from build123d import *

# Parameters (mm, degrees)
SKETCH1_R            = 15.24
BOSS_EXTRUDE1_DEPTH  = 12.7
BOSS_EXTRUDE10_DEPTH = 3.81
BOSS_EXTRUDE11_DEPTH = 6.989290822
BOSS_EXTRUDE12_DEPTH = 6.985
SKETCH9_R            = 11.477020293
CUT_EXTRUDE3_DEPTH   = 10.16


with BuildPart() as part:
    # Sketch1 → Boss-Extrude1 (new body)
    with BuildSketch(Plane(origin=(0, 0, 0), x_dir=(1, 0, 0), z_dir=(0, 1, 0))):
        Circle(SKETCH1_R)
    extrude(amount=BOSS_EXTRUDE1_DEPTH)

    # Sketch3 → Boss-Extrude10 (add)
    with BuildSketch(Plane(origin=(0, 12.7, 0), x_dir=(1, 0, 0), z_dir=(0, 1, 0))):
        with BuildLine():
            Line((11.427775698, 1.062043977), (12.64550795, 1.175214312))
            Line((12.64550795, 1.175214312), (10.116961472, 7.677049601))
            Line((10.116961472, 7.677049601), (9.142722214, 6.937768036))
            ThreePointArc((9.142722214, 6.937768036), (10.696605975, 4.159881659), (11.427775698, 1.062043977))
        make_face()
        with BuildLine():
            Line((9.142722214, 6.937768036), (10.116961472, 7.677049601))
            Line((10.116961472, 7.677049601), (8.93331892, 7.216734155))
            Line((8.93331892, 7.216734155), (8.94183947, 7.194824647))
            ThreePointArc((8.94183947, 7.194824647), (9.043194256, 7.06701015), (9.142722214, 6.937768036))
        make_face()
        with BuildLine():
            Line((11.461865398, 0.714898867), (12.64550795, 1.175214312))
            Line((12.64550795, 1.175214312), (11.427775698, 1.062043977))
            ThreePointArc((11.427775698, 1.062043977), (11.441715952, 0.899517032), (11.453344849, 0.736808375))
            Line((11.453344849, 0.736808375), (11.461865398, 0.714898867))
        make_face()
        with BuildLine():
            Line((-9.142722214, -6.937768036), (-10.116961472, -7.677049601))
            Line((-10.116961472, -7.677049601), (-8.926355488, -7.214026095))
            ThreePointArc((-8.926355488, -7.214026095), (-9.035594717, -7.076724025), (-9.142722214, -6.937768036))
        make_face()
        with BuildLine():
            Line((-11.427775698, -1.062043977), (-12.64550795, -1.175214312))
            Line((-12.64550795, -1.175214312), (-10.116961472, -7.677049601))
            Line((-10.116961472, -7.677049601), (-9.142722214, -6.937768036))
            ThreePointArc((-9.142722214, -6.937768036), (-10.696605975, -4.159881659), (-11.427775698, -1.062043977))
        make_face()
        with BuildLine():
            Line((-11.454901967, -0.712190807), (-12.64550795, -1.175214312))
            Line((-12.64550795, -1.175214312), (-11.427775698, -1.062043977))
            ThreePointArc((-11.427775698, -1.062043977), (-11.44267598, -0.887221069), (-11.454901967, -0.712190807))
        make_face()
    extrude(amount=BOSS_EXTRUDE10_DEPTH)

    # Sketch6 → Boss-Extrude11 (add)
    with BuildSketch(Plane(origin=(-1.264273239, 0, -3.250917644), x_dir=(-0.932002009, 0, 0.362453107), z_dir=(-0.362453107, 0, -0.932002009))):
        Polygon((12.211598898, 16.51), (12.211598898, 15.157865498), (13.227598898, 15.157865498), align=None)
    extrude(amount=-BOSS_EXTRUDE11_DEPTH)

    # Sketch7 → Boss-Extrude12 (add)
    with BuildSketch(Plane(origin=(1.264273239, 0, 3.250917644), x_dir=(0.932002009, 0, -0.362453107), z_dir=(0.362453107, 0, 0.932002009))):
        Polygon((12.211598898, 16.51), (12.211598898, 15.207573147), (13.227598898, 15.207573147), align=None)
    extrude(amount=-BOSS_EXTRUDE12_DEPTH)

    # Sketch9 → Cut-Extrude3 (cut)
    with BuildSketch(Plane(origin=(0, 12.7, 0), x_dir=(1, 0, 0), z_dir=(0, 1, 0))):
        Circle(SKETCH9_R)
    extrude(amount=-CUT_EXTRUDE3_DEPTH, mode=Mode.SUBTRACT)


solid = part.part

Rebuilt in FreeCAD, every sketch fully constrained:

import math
import FreeCAD as App
import Part
import Sketcher
from FreeCAD import Vector
Q = App.Units.Quantity

doc = App.newDocument("Part")
body = doc.addObject("PartDesign::Body", "Body")

sketch1 = body.newObject("Sketcher::SketchObject", "Sketch")
sketch1.AttachmentSupport = (doc.getObject("XZ_Plane"), [""])
sketch1.MapMode = "FlatFace"
sketch1.addGeometry(Part.Circle(Vector(0, 0, 0), Vector(0, 0, 1), 15.24), False)
sketch1.addConstraint([
    Sketcher.Constraint("Coincident", 0, 3, -1, 1),
    Sketcher.Constraint("Diameter", 0, Q("1.2 in")),
])
pad1 = body.newObject("PartDesign::Pad", "Pad")
pad1.Profile = sketch1
pad1.Length = Q("0.5 in")
pad1.Reversed = True

sketch2 = body.newObject("Sketcher::SketchObject", "Sketch001")
sketch2.AttachmentSupport = (doc.getObject("XZ_Plane"), [""])
sketch2.MapMode = "FlatFace"
sketch2.AttachmentOffset = App.Placement(Vector(0, 0, -0.5 * 25.4), App.Rotation())
sketch2.addGeometry([
    Part.LineSegment(Vector(12.645508, -1.175214, 0), Vector(10.116961, -7.67705, 0)),
    Part.LineSegment(Vector(10.116961, -7.67705, 0), Vector(8.933319, -7.216734, 0)),
    Part.LineSegment(Vector(8.933319, -7.216734, 0), Vector(8.941839, -7.194825, 0)),
    Part.ArcOfCircle(Part.Circle(Vector(0.000002, -0.000002, 0), Vector(0, 0, 1), 11.477018), math.radians(-38.821014), math.radians(-37.192302)),
    Part.ArcOfCircle(Part.Circle(Vector(0, 0, 0), Vector(0, 0, 1), 11.47702), math.radians(-37.192302), math.radians(-5.30955)),
    Part.ArcOfCircle(Part.Circle(Vector(0.000002, 0, 0), Vector(0, 0, 1), 11.477018), math.radians(-5.309551), math.radians(-3.680839)),
    Part.LineSegment(Vector(11.453345, -0.736808, 0), Vector(11.461865, -0.714899, 0)),
    Part.LineSegment(Vector(11.461865, -0.714899, 0), Vector(12.645508, -1.175214, 0)),
    Part.LineSegment(Vector(-10.116961, 7.67705, 0), Vector(-8.926355, 7.214026, 0)),
    Part.ArcOfCircle(Part.Circle(Vector(-0.000004, 0.000004, 0), Vector(0, 0, 1), 11.477015), math.radians(141.055844), math.radians(142.807698)),
    Part.ArcOfCircle(Part.Circle(Vector(0, 0, 0), Vector(0, 0, 1), 11.47702), math.radians(142.807698), math.radians(174.69045)),
    Part.ArcOfCircle(Part.Circle(Vector(0.000003, 0, 0), Vector(0, 0, 1), 11.477023), math.radians(174.69045), math.radians(176.442303)),
    Part.LineSegment(Vector(-11.454902, 0.712191, 0), Vector(-12.645508, 1.175214, 0)),
    Part.LineSegment(Vector(-12.645508, 1.175214, 0), Vector(-10.116961, 7.67705, 0)),
], False)
sketch2.addConstraint([
    Sketcher.Constraint("Coincident", 0, 2, 1, 1),
    Sketcher.Constraint("Coincident", 1, 2, 2, 1),
    Sketcher.Constraint("Coincident", 2, 2, 3, 1),
    Sketcher.Constraint("Coincident", 3, 2, 4, 1),
    Sketcher.Constraint("Coincident", 4, 2, 5, 1),
    Sketcher.Constraint("Coincident", 5, 2, 6, 1),
    Sketcher.Constraint("Coincident", 6, 2, 7, 1),
    Sketcher.Constraint("Coincident", 7, 2, 0, 1),
    Sketcher.Constraint("Coincident", 8, 2, 9, 1),
    Sketcher.Constraint("Coincident", 9, 2, 10, 1),
    Sketcher.Constraint("Coincident", 10, 2, 11, 1),
    Sketcher.Constraint("Coincident", 11, 2, 12, 1),
    Sketcher.Constraint("Coincident", 12, 2, 13, 1),
    Sketcher.Constraint("Coincident", 13, 2, 8, 1),
    Sketcher.Constraint("Coincident", 3, 3, -1, 1),
    Sketcher.Constraint("Coincident", 4, 3, -1, 1),
    Sketcher.Constraint("Coincident", 5, 3, -1, 1),
    Sketcher.Constraint("Coincident", 9, 3, -1, 1),
    Sketcher.Constraint("Coincident", 10, 3, -1, 1),
    Sketcher.Constraint("Coincident", 11, 3, -1, 1),
    Sketcher.Constraint("Distance", 1, Q("0.05 in")),
    Sketcher.Constraint("Distance", 7, Q("0.05 in")),
    Sketcher.Constraint("Radius", 4, 11.47702),
    Sketcher.Constraint("Radius", 10, 11.47702),
    Sketcher.Constraint("DistanceX", 1, 2, 0, 2, Q("0.0466001 in")),
    Sketcher.Constraint("DistanceX", 6, 2, 7, 2, Q("0.0466001 in")),
    Sketcher.Constraint("DistanceY", 6, 2, -1, 1, 0.714899),
    Sketcher.Constraint("DistanceX", 11, 2, -1, 1, 11.454902),
    Sketcher.Constraint("Distance", 2, 0.023508),
    Sketcher.Constraint("Distance", 6, 0.023508),
    Sketcher.Constraint("Distance", 8, 1.277471),
    Sketcher.Constraint("Distance", 12, 1.277471),
    Sketcher.Constraint("DistanceX", -1, 1, 0, 2, 10.116961),
    Sketcher.Constraint("DistanceY", 0, 2, -1, 1, 7.67705),
    Sketcher.Constraint("DistanceY", 3, 2, -1, 1, 6.937768),
    Sketcher.Constraint("DistanceY", 5, 2, -1, 1, 0.736808),
    Sketcher.Constraint("DistanceY", -1, 1, 9, 2, 6.937768),
    Sketcher.Constraint("DistanceX", 13, 2, -1, 1, 10.116961),
    Sketcher.Constraint("DistanceY", -1, 1, 13, 2, 7.67705),
    Sketcher.Constraint("DistanceY", 2, 2, 4, 2, 6.132781),
    Sketcher.Constraint("DistanceX", 10, 2, 8, 2, 2.50142),
    Sketcher.Constraint("DistanceY", 10, 2, 12, 2, 0.11317),
])
pad2 = body.newObject("PartDesign::Pad", "Pad001")
pad2.Profile = sketch2
pad2.Length = Q("0.15 in")
pad2.Reversed = True

sketch3 = body.newObject("Sketcher::SketchObject", "Sketch002")
sketch3.Placement = App.Placement(Vector(-1.264273, 0, -3.250918), App.Rotation(Vector(-0.932002009, 0, 0.362453107), Vector(0, 1, 0), Vector(-0.362453107, 0, -0.932002009), "ZXY"))
sketch3.addGeometry([
    Part.LineSegment(Vector(12.211599, 16.51, 0), Vector(12.211599, 15.157865, 0)),
    Part.LineSegment(Vector(12.211599, 15.157865, 0), Vector(13.227599, 15.157865, 0)),
    Part.LineSegment(Vector(13.227599, 15.157865, 0), Vector(12.211599, 16.51, 0)),
], False)
sketch3.addConstraint([
    Sketcher.Constraint("Coincident", 0, 2, 1, 1),
    Sketcher.Constraint("Coincident", 1, 2, 2, 1),
    Sketcher.Constraint("Coincident", 2, 2, 0, 1),
    Sketcher.Constraint("Vertical", 0),
    Sketcher.Constraint("Horizontal", 1),
    Sketcher.Constraint("DistanceX", 1, 1, 1, 2, Q("0.04 in")),
    Sketcher.Constraint("DistanceY", -1, 1, 2, 2, Q("0.65 in")),
    Sketcher.Constraint("DistanceX", -1, 1, 0, 2, 12.211599),
    Sketcher.Constraint("Distance", 2, 1.691308),
])
pad3 = body.newObject("PartDesign::Pad", "Pad002")
pad3.Profile = sketch3
pad3.Length = 6.989291
pad3.Reversed = True

sketch4 = body.newObject("Sketcher::SketchObject", "Sketch003")
sketch4.Placement = App.Placement(Vector(1.264273, 0, 3.250918), App.Rotation(Vector(0.932002009, 0, -0.362453107), Vector(0, 1, 0), Vector(0.362453107, 0, 0.932002009), "ZXY"))
sketch4.addGeometry([
    Part.LineSegment(Vector(12.211599, 16.51, 0), Vector(12.211599, 15.207573, 0)),
    Part.LineSegment(Vector(12.211599, 15.207573, 0), Vector(13.227599, 15.207573, 0)),
    Part.LineSegment(Vector(13.227599, 15.207573, 0), Vector(12.211599, 16.51, 0)),
], False)
sketch4.addConstraint([
    Sketcher.Constraint("Coincident", 0, 2, 1, 1),
    Sketcher.Constraint("Coincident", 1, 2, 2, 1),
    Sketcher.Constraint("Coincident", 2, 2, 0, 1),
    Sketcher.Constraint("Vertical", 0),
    Sketcher.Constraint("Horizontal", 1),
    Sketcher.Constraint("DistanceX", 1, 1, 1, 2, Q("0.04 in")),
    Sketcher.Constraint("DistanceY", -1, 1, 2, 2, Q("0.65 in")),
    Sketcher.Constraint("DistanceX", -1, 1, 0, 2, 12.211599),
    Sketcher.Constraint("Distance", 2, 1.651839),
])
pad4 = body.newObject("PartDesign::Pad", "Pad003")
pad4.Profile = sketch4
pad4.Length = Q("0.275 in")
pad4.Reversed = True

sketch5 = body.newObject("Sketcher::SketchObject", "Sketch004")
sketch5.AttachmentSupport = (doc.getObject("XZ_Plane"), [""])
sketch5.MapMode = "FlatFace"
sketch5.AttachmentOffset = App.Placement(Vector(0, 0, -0.5 * 25.4), App.Rotation())
sketch5.addGeometry(Part.Circle(Vector(0, 0, 0), Vector(0, 0, 1), 11.47702), False)
sketch5.addConstraint([
    Sketcher.Constraint("Coincident", 0, 3, -1, 1),
    Sketcher.Constraint("Diameter", 0, 22.954041),
])
pocket1 = body.newObject("PartDesign::Pocket", "Pocket")
pocket1.Profile = sketch5
pocket1.Length = Q("0.4 in")
pocket1.Reversed = True

doc.recompute()
